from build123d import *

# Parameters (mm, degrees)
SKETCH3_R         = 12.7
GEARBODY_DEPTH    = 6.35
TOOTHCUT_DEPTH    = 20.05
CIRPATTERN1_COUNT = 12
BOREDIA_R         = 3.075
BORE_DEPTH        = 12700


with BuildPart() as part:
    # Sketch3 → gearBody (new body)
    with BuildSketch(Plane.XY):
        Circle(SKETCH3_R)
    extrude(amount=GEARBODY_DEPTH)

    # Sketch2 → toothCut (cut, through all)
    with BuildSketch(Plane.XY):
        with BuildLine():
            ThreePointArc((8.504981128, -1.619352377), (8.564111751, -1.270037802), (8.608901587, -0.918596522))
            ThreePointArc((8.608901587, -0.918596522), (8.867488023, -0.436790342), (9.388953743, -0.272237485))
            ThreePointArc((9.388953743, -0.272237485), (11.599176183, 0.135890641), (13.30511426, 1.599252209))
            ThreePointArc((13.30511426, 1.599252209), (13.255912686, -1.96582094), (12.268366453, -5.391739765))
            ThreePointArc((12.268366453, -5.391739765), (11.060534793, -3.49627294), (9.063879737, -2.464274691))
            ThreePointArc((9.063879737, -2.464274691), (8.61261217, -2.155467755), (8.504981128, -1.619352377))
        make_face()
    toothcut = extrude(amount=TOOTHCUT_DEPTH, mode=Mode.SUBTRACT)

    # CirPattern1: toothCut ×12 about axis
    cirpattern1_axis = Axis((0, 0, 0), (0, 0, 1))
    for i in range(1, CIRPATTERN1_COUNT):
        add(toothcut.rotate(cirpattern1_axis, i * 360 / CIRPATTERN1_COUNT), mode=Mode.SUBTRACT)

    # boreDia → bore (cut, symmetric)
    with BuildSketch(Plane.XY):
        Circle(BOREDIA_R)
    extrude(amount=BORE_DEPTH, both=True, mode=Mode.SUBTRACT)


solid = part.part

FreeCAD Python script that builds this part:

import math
import FreeCAD as App
import Part
import Sketcher
Q = App.Units.Quantity

doc = App.newDocument("Part")
params = doc.addObject("Spreadsheet::Sheet", "Params")
for row, (alias, value) in enumerate([
    ("sketch1_diameter", "1 in"),
    ("pad1_length", "0.25 in"),
    ("pocket2_length", "1000 in"),
], start=1):
    params.set(f"A{row}", alias)
    params.set(f"B{row}", "=" + value)
    params.setAlias(f"B{row}", alias)

body = doc.addObject("PartDesign::Body", "Body")

# Sketch on XY plane
sketch1 = body.newObject("Sketcher::SketchObject", "Sketch")
sketch1.AttachmentSupport = (doc.getObject("XY_Plane"), [""])
sketch1.MapMode = "FlatFace"
sketch1.addGeometry(Part.Circle(App.Vector(0, 0, 0), App.Vector(0, 0, 1), 13), False)
sketch1.addConstraint([
    Sketcher.Constraint("Coincident", 0, 3, -1, 1),
    Sketcher.Constraint("Diameter", 0, Q("1 in")),
])
sketch1.setExpression("Constraints[1]", "Params.sketch1_diameter")
pad1 = body.newObject("PartDesign::Pad", "Pad")
pad1.Profile = sketch1
pad1.setExpression("Length", "Params.pad1_length")

# Sketch on XY plane
sketch2 = body.newObject("Sketcher::SketchObject", "Sketch001")
sketch2.AttachmentSupport = (doc.getObject("XY_Plane"), [""])
sketch2.MapMode = "FlatFace"
sketch2.addGeometry([
    Part.ArcOfCircle(Part.Circle(App.Vector(0, 0, 0), App.Vector(0, 0, 1), 8.7), math.radians(-10.78), math.radians(-6.09)),  # 0
    Part.ArcOfCircle(Part.Circle(App.Vector(9.2, -1.8, 0), App.Vector(0, 0, 1), 0.7), math.radians(169), math.radians(258)),  # 1
    Part.ArcOfCircle(Part.Circle(App.Vector(8.1, -6.7, 0), App.Vector(0, 0, 1), 4.3), math.radians(17), math.radians(78)),  # 2
    Part.ArcOfCircle(Part.Circle(App.Vector(0, 0, 0), App.Vector(0, 0, 1), 13.4), math.radians(-24), math.radians(7)),  # 3
    Part.ArcOfCircle(Part.Circle(App.Vector(9.7, 4, 0), App.Vector(0, 0, 1), 4.3), math.radians(-95), math.radians(-34)),  # 4
    Part.ArcOfCircle(Part.Circle(App.Vector(9.3, -1, 0), App.Vector(0, 0, 1), 0.7), math.radians(85), math.radians(174)),  # 5
], False)
sketch2.addConstraint([
    Sketcher.Constraint("Tangent", 0, 1, 1, 1),
    Sketcher.Constraint("Tangent", 1, 2, 2, 2),
    Sketcher.Constraint("Coincident", 2, 1, 3, 1),
    Sketcher.Constraint("Coincident", 3, 2, 4, 2),
    Sketcher.Constraint("Tangent", 4, 1, 5, 1),
    Sketcher.Constraint("Tangent", 5, 2, 0, 2),
    Sketcher.Constraint("Coincident", 0, 3, -1, 1),
    Sketcher.Constraint("Coincident", 3, 3, -1, 1),
    Sketcher.Constraint("Equal", 2, 4),
    Sketcher.Constraint("Equal", 1, 5),
    Sketcher.Constraint("Radius", 0, Q("8.657772 mm")),
    Sketcher.Constraint("Radius", 1, Q("0.725714 mm")),
    Sketcher.Constraint("Radius", 2, Q("4.319355 mm")),
    Sketcher.Constraint("Radius", 3, Q("13.400883 mm")),
    Sketcher.Constraint("DistanceX", -1, 1, 5, 2, Q("8.608902 mm")),
    Sketcher.Constraint("DistanceX", 0, 1, 1, 2, Q("0.558899 mm")),
    Sketcher.Constraint("DistanceX", -1, 1, 1, 3, Q("9.217888 mm")),
    Sketcher.Constraint("DistanceX", 1, 3, 4, 3, Q("0.518858 mm")),
])
pocket1 = body.newObject("PartDesign::Pocket", "Pocket")
pocket1.Profile = sketch2
pocket1.Type = "ThroughAll"
pocket1.Reversed = True
doc.recompute()

polarpattern = body.newObject("PartDesign::PolarPattern", "PolarPattern")
polarpattern.Originals = [pocket1]
polarpattern.Axis = (doc.getObject("Z_Axis"), [""])
polarpattern.Angle = 360
polarpattern.Occurrences = 12
body.Tip = polarpattern

# Sketch on XY plane
sketch3 = body.newObject("Sketcher::SketchObject", "Sketch002")
sketch3.AttachmentSupport = (doc.getObject("XY_Plane"), [""])
sketch3.MapMode = "FlatFace"
sketch3.addGeometry(Part.Circle(App.Vector(0, 0, 0), App.Vector(0, 0, 1), 3.1), False)
sketch3.addConstraint([
    Sketcher.Constraint("Coincident", 0, 3, -1, 1),
    Sketcher.Constraint("Diameter", 0, Q("6.15 mm")),
])
pocket2 = body.newObject("PartDesign::Pocket", "Pocket001")
pocket2.Profile = sketch3
pocket2.setExpression("Length", "Params.pocket2_length")
pocket2.Midplane = True

doc.recompute()
